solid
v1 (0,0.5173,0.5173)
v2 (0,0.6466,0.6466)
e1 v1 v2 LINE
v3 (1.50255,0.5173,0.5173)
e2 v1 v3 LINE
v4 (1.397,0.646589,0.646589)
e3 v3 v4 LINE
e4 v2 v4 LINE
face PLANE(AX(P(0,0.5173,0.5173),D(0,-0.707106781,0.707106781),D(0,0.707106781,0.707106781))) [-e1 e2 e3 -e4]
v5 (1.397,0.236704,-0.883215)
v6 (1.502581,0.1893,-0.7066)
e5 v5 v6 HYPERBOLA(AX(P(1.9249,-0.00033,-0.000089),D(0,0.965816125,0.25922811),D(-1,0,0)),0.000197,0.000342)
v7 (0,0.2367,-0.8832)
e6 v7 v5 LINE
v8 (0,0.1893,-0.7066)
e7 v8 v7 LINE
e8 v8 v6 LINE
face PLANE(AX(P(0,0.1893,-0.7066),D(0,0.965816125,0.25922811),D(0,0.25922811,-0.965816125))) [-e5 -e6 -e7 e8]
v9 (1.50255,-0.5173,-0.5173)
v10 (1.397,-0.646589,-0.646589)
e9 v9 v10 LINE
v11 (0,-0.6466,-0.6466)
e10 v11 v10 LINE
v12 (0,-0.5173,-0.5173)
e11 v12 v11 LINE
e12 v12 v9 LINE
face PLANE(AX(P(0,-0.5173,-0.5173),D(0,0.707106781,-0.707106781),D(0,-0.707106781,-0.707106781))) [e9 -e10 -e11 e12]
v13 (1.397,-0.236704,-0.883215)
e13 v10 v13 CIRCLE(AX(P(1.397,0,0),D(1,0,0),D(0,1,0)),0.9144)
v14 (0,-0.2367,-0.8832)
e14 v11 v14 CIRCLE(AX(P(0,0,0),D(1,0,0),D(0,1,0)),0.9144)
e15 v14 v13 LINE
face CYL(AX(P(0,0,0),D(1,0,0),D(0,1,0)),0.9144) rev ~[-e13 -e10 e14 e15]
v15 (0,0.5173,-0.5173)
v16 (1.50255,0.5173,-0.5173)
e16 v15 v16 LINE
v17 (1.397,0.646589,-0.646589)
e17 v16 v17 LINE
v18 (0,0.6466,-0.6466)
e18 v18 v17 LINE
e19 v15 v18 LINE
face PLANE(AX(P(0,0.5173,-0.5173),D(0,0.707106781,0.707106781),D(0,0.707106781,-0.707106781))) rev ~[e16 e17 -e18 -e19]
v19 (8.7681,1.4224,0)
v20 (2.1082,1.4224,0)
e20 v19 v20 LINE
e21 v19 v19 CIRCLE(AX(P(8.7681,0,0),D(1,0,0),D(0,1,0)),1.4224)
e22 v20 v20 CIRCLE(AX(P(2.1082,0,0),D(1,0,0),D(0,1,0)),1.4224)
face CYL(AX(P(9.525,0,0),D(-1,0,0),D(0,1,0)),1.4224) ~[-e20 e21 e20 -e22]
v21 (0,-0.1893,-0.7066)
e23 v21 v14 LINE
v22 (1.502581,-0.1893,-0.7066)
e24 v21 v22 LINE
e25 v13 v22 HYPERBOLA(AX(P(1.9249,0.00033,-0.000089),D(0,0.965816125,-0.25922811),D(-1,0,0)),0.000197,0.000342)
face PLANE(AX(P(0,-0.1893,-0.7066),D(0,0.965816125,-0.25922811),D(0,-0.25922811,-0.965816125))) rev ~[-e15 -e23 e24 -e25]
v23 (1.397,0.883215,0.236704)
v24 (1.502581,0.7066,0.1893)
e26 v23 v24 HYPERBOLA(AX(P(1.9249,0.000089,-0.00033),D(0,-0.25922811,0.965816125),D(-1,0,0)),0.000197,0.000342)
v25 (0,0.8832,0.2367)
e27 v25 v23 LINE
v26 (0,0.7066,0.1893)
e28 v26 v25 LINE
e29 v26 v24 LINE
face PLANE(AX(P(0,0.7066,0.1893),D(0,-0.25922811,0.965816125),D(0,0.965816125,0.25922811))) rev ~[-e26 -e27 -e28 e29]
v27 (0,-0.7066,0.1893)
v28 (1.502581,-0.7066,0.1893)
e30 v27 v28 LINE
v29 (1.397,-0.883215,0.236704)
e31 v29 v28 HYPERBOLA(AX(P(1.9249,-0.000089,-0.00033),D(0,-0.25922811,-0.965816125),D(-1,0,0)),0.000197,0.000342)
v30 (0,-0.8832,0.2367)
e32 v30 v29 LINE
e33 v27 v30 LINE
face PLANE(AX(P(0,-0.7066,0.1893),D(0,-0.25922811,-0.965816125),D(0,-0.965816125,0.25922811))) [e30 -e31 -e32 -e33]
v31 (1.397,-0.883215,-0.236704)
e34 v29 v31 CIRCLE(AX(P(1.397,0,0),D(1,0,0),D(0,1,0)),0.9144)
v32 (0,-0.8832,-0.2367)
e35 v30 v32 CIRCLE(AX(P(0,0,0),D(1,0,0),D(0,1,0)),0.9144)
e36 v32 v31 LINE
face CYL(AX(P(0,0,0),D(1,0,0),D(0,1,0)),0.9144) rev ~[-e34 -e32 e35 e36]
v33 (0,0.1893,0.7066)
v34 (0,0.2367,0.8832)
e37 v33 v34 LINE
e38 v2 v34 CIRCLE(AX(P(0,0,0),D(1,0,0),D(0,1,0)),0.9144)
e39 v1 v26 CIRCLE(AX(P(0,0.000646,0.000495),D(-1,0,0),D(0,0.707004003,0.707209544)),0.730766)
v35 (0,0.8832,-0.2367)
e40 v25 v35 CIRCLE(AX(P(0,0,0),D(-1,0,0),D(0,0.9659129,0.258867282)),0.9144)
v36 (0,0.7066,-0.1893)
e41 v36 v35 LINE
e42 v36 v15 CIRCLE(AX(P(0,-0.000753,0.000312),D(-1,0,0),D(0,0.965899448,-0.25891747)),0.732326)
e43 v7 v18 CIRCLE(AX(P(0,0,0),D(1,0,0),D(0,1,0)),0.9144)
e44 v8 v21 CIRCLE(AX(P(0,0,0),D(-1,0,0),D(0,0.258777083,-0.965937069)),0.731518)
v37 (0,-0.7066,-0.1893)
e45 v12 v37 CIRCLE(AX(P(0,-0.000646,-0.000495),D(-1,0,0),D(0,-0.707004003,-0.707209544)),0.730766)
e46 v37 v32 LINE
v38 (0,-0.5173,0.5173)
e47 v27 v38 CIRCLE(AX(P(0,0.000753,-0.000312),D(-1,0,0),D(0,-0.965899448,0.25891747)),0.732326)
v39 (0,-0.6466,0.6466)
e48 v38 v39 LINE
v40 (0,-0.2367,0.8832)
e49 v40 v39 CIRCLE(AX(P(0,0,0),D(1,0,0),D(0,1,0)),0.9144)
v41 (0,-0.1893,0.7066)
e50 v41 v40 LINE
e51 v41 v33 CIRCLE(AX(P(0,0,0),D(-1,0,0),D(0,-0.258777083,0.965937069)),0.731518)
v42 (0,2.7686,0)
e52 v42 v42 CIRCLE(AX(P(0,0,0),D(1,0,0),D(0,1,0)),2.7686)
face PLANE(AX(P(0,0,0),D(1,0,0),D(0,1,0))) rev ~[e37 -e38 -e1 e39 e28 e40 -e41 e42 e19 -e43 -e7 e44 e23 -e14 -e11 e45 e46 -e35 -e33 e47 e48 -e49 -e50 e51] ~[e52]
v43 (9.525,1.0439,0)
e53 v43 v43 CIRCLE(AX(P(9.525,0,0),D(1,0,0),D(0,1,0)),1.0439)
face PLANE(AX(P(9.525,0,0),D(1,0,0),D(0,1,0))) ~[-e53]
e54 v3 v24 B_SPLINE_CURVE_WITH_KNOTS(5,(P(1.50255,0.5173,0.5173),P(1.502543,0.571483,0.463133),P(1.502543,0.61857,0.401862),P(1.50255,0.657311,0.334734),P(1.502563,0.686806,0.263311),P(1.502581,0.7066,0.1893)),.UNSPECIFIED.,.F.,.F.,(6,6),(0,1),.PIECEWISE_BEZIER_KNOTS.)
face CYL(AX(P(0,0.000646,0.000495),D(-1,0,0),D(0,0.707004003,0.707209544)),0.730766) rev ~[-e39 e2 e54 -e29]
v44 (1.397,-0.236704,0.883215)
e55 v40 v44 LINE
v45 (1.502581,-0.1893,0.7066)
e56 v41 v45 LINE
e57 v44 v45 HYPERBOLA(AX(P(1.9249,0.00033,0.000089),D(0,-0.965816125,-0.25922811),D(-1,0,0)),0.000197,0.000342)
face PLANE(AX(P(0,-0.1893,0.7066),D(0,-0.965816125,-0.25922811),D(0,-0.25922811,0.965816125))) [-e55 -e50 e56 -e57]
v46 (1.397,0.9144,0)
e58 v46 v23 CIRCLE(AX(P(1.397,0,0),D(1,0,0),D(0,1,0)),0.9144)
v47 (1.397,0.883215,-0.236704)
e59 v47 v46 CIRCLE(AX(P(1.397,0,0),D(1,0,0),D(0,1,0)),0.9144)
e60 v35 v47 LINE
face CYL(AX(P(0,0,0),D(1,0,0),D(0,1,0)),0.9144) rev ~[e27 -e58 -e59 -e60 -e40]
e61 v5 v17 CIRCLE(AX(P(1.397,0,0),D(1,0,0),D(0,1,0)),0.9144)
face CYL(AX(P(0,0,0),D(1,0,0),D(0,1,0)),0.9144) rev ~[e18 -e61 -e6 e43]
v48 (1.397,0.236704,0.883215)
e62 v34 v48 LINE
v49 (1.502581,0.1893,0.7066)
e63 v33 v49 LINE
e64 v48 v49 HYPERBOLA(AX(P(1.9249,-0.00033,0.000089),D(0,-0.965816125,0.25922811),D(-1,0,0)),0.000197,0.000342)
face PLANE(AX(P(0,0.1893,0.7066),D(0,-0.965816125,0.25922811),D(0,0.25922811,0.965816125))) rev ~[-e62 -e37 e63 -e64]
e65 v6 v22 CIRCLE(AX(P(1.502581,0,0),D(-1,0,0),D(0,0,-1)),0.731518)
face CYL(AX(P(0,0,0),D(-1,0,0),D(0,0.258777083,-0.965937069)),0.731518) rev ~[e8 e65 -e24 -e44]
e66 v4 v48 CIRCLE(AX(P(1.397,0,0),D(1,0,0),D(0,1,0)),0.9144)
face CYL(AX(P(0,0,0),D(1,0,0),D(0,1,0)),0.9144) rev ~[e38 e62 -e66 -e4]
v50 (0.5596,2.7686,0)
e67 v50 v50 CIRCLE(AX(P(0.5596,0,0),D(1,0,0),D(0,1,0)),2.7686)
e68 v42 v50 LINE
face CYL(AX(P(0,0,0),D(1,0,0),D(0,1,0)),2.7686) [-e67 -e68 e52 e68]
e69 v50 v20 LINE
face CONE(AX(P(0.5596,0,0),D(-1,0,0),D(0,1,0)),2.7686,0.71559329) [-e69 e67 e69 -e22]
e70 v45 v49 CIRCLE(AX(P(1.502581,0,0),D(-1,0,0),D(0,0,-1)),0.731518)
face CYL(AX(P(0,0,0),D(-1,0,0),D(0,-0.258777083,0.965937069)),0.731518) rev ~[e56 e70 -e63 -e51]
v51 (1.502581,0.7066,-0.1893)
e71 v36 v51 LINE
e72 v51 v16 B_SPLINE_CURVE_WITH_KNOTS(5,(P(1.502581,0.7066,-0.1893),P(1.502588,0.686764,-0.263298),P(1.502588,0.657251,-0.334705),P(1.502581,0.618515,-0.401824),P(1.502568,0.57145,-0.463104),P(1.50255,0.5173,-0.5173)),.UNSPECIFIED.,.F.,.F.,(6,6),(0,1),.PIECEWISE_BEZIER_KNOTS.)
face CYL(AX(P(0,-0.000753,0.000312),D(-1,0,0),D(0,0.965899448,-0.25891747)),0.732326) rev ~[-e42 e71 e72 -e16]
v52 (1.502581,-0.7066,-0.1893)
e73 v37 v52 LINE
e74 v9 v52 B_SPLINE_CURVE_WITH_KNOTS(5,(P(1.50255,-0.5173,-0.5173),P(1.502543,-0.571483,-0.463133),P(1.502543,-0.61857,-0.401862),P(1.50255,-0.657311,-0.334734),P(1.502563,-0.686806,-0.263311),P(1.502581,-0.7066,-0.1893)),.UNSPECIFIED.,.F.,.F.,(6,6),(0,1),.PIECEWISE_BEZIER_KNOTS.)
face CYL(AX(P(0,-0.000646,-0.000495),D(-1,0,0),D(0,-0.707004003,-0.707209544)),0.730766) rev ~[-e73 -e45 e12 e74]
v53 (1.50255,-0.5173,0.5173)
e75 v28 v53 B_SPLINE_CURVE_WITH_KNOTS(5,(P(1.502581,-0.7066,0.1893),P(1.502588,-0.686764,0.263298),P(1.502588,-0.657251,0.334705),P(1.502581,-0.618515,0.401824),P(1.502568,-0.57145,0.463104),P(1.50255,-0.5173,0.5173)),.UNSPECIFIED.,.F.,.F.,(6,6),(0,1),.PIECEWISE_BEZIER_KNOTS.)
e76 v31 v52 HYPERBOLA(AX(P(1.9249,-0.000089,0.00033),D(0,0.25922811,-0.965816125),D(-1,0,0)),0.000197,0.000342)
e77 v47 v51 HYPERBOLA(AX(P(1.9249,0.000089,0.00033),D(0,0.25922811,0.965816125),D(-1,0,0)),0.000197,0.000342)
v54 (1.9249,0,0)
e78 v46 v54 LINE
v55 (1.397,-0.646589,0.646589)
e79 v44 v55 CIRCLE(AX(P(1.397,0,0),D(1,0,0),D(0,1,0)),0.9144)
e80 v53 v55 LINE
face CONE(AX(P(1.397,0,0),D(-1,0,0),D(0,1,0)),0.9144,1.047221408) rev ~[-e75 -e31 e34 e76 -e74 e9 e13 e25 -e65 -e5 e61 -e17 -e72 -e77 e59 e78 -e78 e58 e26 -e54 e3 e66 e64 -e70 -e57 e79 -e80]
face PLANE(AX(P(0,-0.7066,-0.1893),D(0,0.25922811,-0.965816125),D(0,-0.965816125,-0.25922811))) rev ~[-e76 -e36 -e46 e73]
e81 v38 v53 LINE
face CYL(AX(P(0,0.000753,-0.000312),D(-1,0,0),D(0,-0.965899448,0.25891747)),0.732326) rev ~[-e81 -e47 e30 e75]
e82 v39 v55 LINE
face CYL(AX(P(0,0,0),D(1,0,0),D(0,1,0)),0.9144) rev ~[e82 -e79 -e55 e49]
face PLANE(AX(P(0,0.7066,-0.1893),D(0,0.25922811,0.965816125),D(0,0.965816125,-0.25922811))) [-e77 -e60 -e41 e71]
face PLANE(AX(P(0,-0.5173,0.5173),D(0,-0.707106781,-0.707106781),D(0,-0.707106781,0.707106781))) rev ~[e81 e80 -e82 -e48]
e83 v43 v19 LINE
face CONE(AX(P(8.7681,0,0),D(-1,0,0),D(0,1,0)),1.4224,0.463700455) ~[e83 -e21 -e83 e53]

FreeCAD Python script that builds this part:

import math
import FreeCAD as App
import Part
import Sketcher
Q = App.Units.Quantity


def edges_at(feature, points):
    """Names of the edges that pass closest to the given points."""
    edges = feature.Shape.Edges
    near = lambda p: min(range(len(edges)), key=lambda i: edges[i].distToShape(Part.Vertex(*p))[0])
    return sorted({f"Edge{near(p) + 1}" for p in points})

doc = App.newDocument("Part")
body = doc.addObject("PartDesign::Body", "Body")

# Sketch on XY plane
sketch1 = body.newObject("Sketcher::SketchObject", "Sketch")
sketch1.AttachmentSupport = (doc.getObject("XY_Plane"), [""])
sketch1.MapMode = "FlatFace"
sketch1.addGeometry([
    Part.LineSegment(App.Vector(1.9, 0, 0), App.Vector(9.5, 0, 0)),  # 0
    Part.LineSegment(App.Vector(9.5, 0, 0), App.Vector(9.5, 1.4, 0)),  # 1
    Part.LineSegment(App.Vector(9.5, 1.4, 0), App.Vector(2.1, 1.4, 0)),  # 2
    Part.LineSegment(App.Vector(2.1, 1.4, 0), App.Vector(0.6, 2.8, 0)),  # 3
    Part.LineSegment(App.Vector(0.6, 2.8, 0), App.Vector(0, 2.8, 0)),  # 4
    Part.LineSegment(App.Vector(0, 2.8, 0), App.Vector(0, 0.9, 0)),  # 5
    Part.LineSegment(App.Vector(0, 0.9, 0), App.Vector(1.4, 0.9, 0)),  # 6
    Part.LineSegment(App.Vector(1.4, 0.9, 0), App.Vector(1.9, 0, 0)),  # 7
], False)
sketch1.addConstraint([
    Sketcher.Constraint("Coincident", 0, 2, 1, 1),
    Sketcher.Constraint("Coincident", 1, 2, 2, 1),
    Sketcher.Constraint("Coincident", 2, 2, 3, 1),
    Sketcher.Constraint("Coincident", 3, 2, 4, 1),
    Sketcher.Constraint("Coincident", 4, 2, 5, 1),
    Sketcher.Constraint("Coincident", 5, 2, 6, 1),
    Sketcher.Constraint("Coincident", 6, 2, 7, 1),
    Sketcher.Constraint("Coincident", 7, 2, 0, 1),
    Sketcher.Constraint("Horizontal", 0),
    Sketcher.Constraint("Vertical", 1),
    Sketcher.Constraint("Horizontal", 2),
    Sketcher.Constraint("Horizontal", 4),
    Sketcher.Constraint("Vertical", 5),
    Sketcher.Constraint("Horizontal", 6),
    Sketcher.Constraint("PointOnObject", 0, 2, -1),
    Sketcher.Constraint("PointOnObject", 4, 2, -2),
    Sketcher.Constraint("DistanceX", 6, 1, 6, 2, Q("0.055 in")),
    Sketcher.Constraint("DistanceX", -1, 1, 0, 2, Q("0.375 in")),
    Sketcher.Constraint("DistanceX", -1, 1, 2, 2, Q("0.083 in")),
    Sketcher.Constraint("Angle", 3, Q("138.9995 deg")),
    Sketcher.Constraint("DistanceY", 1, 1, 1, 2, Q("0.056 in")),
    Sketcher.Constraint("DistanceY", 5, 2, 5, 1, Q("0.073 in")),
    Sketcher.Constraint("DistanceY", 5, 2, 2, 2, Q("0.02 in")),
    Sketcher.Constraint("DistanceX", 0, 1, 0, 2, 7.6),
])
revolution = body.newObject("PartDesign::Revolution", "Revolution")
revolution.Profile = sketch1
revolution.ReferenceAxis = (sketch1, ["H_Axis"])
revolution.Angle = 360

# Sketch on YZ plane
sketch2 = body.newObject("Sketcher::SketchObject", "Sketch001")
sketch2.AttachmentSupport = (doc.getObject("YZ_Plane"), [""])
sketch2.MapMode = "FlatFace"
sketch2.addGeometry([
    Part.ArcOfCircle(Part.Circle(App.Vector(0, 0, 0), App.Vector(0, 0, 1), 0.73), math.radians(75), math.radians(105)),  # 0
    Part.LineSegment(App.Vector(-0.19, 0.71, 0), App.Vector(-0.24, 0.88, 0)),  # 1
    Part.ArcOfCircle(Part.Circle(App.Vector(0, 0, 0), App.Vector(0, 0, 1), 0.91), math.radians(75), math.radians(105)),  # 2
    Part.LineSegment(App.Vector(0.24, 0.88, 0), App.Vector(0.19, 0.71, 0)),  # 3
    Part.ArcOfCircle(Part.Circle(App.Vector(0, 0, 0), App.Vector(0, 0, 1), 0.73), math.radians(-105), math.radians(-75)),  # 4
    Part.LineSegment(App.Vector(0.19, -0.71, 0), App.Vector(0.24, -0.88, 0)),  # 5
    Part.ArcOfCircle(Part.Circle(App.Vector(0, 0, 0), App.Vector(0, 0, 1), 0.91), math.radians(-105), math.radians(-75)),  # 6
    Part.LineSegment(App.Vector(-0.24, -0.88, 0), App.Vector(-0.19, -0.71, 0)),  # 7
    Part.ArcOfCircle(Part.Circle(App.Vector(0, 0, 0), App.Vector(0, 0, 1), 0.91), math.radians(15), math.radians(45)),  # 8
    Part.LineSegment(App.Vector(0.88, 0.24, 0), App.Vector(0.71, 0.19, 0)),  # 9
    Part.ArcOfCircle(Part.Circle(App.Vector(0, 0, 0), App.Vector(0, 0, 1), 0.73), math.radians(15), math.radians(45)),  # 10
    Part.LineSegment(App.Vector(0.52, 0.52, 0), App.Vector(0.65, 0.65, 0)),  # 11
    Part.LineSegment(App.Vector(0.71, -0.19, 0), App.Vector(0.88, -0.24, 0)),  # 12
    Part.ArcOfCircle(Part.Circle(App.Vector(0, 0, 0), App.Vector(0, 0, 1), 0.91), math.radians(-45), math.radians(-15)),  # 13
    Part.LineSegment(App.Vector(0.65, -0.65, 0), App.Vector(0.52, -0.52, 0)),  # 14
    Part.ArcOfCircle(Part.Circle(App.Vector(0, 0, 0), App.Vector(0, 0, 1), 0.73), math.radians(-45), math.radians(-15)),  # 15
    Part.ArcOfCircle(Part.Circle(App.Vector(0, 0, 0), App.Vector(0, 0, 1), 0.91), math.radians(-165), math.radians(-135)),  # 16
    Part.LineSegment(App.Vector(-0.88, -0.24, 0), App.Vector(-0.71, -0.19, 0)),  # 17
    Part.ArcOfCircle(Part.Circle(App.Vector(0, 0, 0), App.Vector(0, 0, 1), 0.73), math.radians(-165), math.radians(-135)),  # 18
    Part.LineSegment(App.Vector(-0.52, -0.52, 0), App.Vector(-0.65, -0.65, 0)),  # 19
    Part.LineSegment(App.Vector(-0.71, 0.19, 0), App.Vector(-0.88, 0.24, 0)),  # 20
    Part.ArcOfCircle(Part.Circle(App.Vector(0, 0, 0), App.Vector(0, 0, 1), 0.91), math.radians(135), math.radians(165)),  # 21
    Part.LineSegment(App.Vector(-0.65, 0.65, 0), App.Vector(-0.52, 0.52, 0)),  # 22
    Part.ArcOfCircle(Part.Circle(App.Vector(0, 0, 0), App.Vector(0, 0, 1), 0.73), math.radians(135), math.radians(165)),  # 23
], False)
sketch2.addConstraint([
    Sketcher.Constraint("Coincident", 0, 2, 1, 1),
    Sketcher.Constraint("Coincident", 1, 2, 2, 2),
    Sketcher.Constraint("Coincident", 2, 1, 3, 1),
    Sketcher.Constraint("Coincident", 3, 2, 0, 1),
    Sketcher.Constraint("Coincident", 4, 2, 5, 1),
    Sketcher.Constraint("Coincident", 5, 2, 6, 2),
    Sketcher.Constraint("Coincident", 6, 1, 7, 1),
    Sketcher.Constraint("Coincident", 7, 2, 4, 1),
    Sketcher.Constraint("Coincident", 8, 1, 9, 1),
    Sketcher.Constraint("Coincident", 9, 2, 10, 1),
    Sketcher.Constraint("Coincident", 10, 2, 11, 1),
    Sketcher.Constraint("Coincident", 11, 2, 8, 2),
    Sketcher.Constraint("Coincident", 12, 2, 13, 2),
    Sketcher.Constraint("Coincident", 13, 1, 14, 1),
    Sketcher.Constraint("Coincident", 14, 2, 15, 1),
    Sketcher.Constraint("Coincident", 15, 2, 12, 1),
    Sketcher.Constraint("Coincident", 16, 1, 17, 1),
    Sketcher.Constraint("Coincident", 17, 2, 18, 1),
    Sketcher.Constraint("Coincident", 18, 2, 19, 1),
    Sketcher.Constraint("Coincident", 19, 2, 16, 2),
    Sketcher.Constraint("Coincident", 20, 2, 21, 2),
    Sketcher.Constraint("Coincident", 21, 1, 22, 1),
    Sketcher.Constraint("Coincident", 22, 2, 23, 1),
    Sketcher.Constraint("Coincident", 23, 2, 20, 1),
    Sketcher.Constraint("Coincident", 0, 3, -1, 1),
    Sketcher.Constraint("Coincident", 2, 3, -1, 1),
    Sketcher.Constraint("Coincident", 4, 3, -1, 1),
    Sketcher.Constraint("Coincident", 6, 3, -1, 1),
    Sketcher.Constraint("Coincident", 8, 3, -1, 1),
    Sketcher.Constraint("Coincident", 10, 3, -1, 1),
    Sketcher.Constraint("Coincident", 13, 3, -1, 1),
    Sketcher.Constraint("Coincident", 15, 3, -1, 1),
    Sketcher.Constraint("Coincident", 16, 3, -1, 1),
    Sketcher.Constraint("Coincident", 18, 3, -1, 1),
    Sketcher.Constraint("Coincident", 21, 3, -1, 1),
    Sketcher.Constraint("Coincident", 23, 3, -1, 1),
    Sketcher.Constraint("Equal", 0, 4),
    Sketcher.Constraint("Equal", 2, 6),
    Sketcher.Constraint("Equal", 6, 8),
    Sketcher.Constraint("Equal", 4, 10),
    Sketcher.Constraint("Equal", 8, 13),
    Sketcher.Constraint("Equal", 10, 15),
    Sketcher.Constraint("Equal", 13, 16),
    Sketcher.Constraint("Equal", 15, 18),
    Sketcher.Constraint("Equal", 16, 21),
    Sketcher.Constraint("Equal", 18, 23),
    Sketcher.Constraint("Parallel", 1, 5),
    Sketcher.Constraint("Parallel", 3, 7),
    Sketcher.Constraint("Perpendicular", 5, 9),
    Sketcher.Constraint("Perpendicular", 7, 12),
    Sketcher.Constraint("Perpendicular", 11, 14),
    Sketcher.Constraint("Parallel", 9, 17),
    Sketcher.Constraint("Perpendicular", 14, 19),
    Sketcher.Constraint("Parallel", 12, 20),
    Sketcher.Constraint("Perpendicular", 19, 22),
    Sketcher.Constraint("Horizontal", 1, 2, 2, 1),
    Sketcher.Constraint("Horizontal", 0, 2, 3, 2),
    Sketcher.Constraint("Horizontal", 5, 2, 6, 1),
    Sketcher.Constraint("Horizontal", 12, 2, 16, 1),
    Sketcher.Constraint("Horizontal", 14, 2, 18, 2),
    Sketcher.Constraint("Horizontal", 13, 1, 19, 2),
    Sketcher.Constraint("Horizontal", 8, 1, 20, 2),
    Sketcher.Constraint("Horizontal", 11, 2, 21, 1),
    Sketcher.Constraint("Vertical", 3, 2, 4, 2),
    Sketcher.Constraint("Vertical", 8, 1, 12, 2),
    Sketcher.Constraint("Vertical", 11, 2, 13, 1),
    Sketcher.Constraint("Radius", 2, Q("0.036 in")),
    Sketcher.Constraint("Radius", 0, Q("0.0288 in")),
    Sketcher.Constraint("DistanceX", 3, 2, 11, 2, Q("0.018 in")),
    Sketcher.Constraint("DistanceY", 9, 2, 11, 2, Q("0.018 in")),
    Sketcher.Constraint("DistanceX", 0, 2, 3, 2, Q("0.0149 in")),
    Sketcher.Constraint("DistanceY", 8, 1, 3, 2, Q("0.0185 in")),
])
pad1 = body.newObject("PartDesign::Pad", "Pad")
pad1.Profile = sketch2
pad1.Type = "UpToFirst"
doc.recompute()

chamfer = body.newObject("PartDesign::Chamfer", "Chamfer")
chamfer.Base = (pad1, edges_at(pad1, [(9.525, -1.422, 0)]))
chamfer.ChamferType = "Two distances"
chamfer.Size = Q("0.0149016 in")
chamfer.Size2 = Q("0.0297992 in")

doc.recompute()
